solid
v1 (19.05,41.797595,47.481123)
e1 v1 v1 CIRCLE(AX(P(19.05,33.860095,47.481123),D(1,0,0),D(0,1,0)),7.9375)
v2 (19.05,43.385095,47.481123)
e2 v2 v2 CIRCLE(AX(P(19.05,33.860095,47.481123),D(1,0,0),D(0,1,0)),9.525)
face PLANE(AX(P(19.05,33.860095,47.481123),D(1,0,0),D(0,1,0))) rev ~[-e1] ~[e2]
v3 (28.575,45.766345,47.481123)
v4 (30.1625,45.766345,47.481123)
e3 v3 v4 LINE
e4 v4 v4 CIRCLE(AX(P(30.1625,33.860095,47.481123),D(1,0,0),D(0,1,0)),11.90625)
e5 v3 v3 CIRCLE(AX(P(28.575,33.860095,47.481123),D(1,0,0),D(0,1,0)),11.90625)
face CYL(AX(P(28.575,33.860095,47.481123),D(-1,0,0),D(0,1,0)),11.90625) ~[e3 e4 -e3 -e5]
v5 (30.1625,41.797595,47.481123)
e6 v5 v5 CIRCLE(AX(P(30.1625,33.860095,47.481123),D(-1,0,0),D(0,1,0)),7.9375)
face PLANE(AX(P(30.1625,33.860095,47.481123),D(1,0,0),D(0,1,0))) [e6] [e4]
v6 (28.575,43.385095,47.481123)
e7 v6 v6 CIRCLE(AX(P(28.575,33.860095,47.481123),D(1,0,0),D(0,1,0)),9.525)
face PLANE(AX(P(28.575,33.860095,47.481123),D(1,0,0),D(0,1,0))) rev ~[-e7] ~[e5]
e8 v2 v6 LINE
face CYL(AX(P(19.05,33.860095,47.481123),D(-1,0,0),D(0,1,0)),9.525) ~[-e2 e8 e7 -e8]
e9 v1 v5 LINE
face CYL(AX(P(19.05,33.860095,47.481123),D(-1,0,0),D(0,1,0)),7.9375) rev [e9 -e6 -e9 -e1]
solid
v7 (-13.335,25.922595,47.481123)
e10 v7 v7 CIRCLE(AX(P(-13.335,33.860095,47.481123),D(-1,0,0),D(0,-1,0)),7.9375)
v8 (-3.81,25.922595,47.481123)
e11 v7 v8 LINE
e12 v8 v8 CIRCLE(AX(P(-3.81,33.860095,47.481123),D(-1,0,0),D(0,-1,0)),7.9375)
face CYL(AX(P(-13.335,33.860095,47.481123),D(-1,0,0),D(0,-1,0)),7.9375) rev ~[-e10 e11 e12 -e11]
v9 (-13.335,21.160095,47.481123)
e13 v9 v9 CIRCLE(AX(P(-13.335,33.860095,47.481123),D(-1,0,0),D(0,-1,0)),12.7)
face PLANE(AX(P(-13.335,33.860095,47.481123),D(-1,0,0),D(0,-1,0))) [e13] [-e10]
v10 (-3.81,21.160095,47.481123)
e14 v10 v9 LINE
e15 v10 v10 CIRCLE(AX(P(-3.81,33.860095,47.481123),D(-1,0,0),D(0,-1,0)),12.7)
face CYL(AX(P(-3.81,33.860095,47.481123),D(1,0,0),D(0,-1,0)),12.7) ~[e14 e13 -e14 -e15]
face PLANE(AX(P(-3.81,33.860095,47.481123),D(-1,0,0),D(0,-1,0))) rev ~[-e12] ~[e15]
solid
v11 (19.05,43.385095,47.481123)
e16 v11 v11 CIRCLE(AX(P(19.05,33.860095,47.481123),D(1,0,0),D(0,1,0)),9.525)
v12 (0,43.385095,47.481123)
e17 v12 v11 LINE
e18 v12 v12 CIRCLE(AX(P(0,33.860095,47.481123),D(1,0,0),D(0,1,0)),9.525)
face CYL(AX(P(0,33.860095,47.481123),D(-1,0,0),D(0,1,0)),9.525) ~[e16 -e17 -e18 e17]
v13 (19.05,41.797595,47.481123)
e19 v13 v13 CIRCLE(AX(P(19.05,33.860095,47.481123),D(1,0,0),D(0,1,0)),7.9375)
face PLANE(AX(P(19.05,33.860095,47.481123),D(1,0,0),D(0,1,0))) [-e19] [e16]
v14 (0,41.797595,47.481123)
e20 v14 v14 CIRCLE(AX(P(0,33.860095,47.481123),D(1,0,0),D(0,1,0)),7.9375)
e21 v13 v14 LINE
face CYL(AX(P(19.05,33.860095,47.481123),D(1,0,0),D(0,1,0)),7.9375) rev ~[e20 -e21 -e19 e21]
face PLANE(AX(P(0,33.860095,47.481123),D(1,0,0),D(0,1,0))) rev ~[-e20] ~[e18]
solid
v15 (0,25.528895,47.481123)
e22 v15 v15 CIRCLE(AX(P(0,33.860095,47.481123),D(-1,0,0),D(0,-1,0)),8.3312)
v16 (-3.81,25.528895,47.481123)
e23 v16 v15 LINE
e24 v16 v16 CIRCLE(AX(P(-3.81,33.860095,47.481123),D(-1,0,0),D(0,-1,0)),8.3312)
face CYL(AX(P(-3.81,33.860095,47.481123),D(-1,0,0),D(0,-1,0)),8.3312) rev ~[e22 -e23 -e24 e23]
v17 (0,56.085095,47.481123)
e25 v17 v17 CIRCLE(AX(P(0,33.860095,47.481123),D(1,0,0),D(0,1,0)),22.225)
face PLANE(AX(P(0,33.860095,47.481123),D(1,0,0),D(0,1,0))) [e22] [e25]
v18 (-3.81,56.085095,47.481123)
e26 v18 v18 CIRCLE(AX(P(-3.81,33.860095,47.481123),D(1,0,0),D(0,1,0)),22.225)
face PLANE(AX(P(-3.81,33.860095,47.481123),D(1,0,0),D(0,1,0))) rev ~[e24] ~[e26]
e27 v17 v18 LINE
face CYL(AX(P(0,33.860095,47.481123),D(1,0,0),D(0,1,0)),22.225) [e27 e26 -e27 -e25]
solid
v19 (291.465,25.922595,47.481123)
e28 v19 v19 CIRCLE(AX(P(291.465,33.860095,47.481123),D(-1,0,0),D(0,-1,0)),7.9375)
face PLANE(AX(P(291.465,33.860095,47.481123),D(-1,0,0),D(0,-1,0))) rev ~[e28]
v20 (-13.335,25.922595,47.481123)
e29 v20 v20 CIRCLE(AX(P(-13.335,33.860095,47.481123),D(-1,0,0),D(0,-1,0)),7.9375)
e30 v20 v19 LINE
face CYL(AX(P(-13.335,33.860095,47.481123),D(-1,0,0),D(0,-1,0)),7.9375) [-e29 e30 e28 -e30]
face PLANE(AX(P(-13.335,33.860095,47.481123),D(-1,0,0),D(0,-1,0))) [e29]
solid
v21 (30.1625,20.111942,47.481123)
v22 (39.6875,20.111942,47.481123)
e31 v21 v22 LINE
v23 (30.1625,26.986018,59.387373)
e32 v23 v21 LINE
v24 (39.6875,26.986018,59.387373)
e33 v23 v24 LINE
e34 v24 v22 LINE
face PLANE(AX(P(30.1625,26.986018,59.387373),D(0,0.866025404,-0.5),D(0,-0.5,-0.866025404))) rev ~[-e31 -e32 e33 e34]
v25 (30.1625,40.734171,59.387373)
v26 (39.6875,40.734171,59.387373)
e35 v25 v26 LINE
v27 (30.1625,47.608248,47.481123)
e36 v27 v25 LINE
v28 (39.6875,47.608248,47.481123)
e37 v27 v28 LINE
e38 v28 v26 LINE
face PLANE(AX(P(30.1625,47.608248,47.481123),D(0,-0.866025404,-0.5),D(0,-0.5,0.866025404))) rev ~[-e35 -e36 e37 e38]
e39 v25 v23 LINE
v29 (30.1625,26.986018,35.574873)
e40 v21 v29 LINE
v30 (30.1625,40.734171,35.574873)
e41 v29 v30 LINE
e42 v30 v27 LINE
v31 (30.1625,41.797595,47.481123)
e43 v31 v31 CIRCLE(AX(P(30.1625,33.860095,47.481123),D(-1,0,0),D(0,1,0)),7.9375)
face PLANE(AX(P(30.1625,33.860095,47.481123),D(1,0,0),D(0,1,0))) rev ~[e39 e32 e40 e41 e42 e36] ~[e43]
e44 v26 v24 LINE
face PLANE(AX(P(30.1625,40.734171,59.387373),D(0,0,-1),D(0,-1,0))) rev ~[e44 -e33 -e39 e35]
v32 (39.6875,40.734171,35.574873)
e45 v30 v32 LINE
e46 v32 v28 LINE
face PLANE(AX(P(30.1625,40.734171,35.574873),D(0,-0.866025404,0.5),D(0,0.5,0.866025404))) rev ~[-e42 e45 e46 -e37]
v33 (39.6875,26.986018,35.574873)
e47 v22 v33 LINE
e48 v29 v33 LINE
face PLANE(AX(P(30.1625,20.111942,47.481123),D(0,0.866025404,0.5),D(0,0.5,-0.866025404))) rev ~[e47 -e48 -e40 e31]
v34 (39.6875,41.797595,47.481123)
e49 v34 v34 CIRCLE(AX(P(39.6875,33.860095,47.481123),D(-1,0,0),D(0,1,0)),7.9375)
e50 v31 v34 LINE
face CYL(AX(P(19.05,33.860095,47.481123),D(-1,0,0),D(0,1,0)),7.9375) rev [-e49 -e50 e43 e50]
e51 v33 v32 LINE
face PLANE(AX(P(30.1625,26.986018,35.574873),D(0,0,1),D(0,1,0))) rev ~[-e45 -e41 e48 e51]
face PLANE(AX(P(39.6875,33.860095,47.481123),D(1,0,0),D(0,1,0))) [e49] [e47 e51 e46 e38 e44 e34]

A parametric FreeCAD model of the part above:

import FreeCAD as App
import Part
import Sketcher
Q = App.Units.Quantity

doc = App.newDocument("Part")
body = doc.addObject("PartDesign::Body", "Body")

# Sketch on YZ plane
sketch1 = doc.addObject("Sketcher::SketchObject", "Sketch")
body.addObject(sketch1)
sketch1.AttachmentSupport = (doc.YZ_Plane, [""])
sketch1.MapMode = "FlatFace"
sketch1.addGeometry(Part.Circle(App.Vector(34, 47, 0), App.Vector(0, 0, 1), 10), False)
sketch1.addConstraint(Sketcher.Constraint("Diameter", 0, Q("0.75 in")))
sketch1.addConstraint(Sketcher.Constraint("DistanceX", -1, 1, 0, 3, Q("33.860095 mm")))
sketch1.addConstraint(Sketcher.Constraint("DistanceY", -1, 1, 0, 3, Q("47.481123 mm")))
pad1 = doc.addObject("PartDesign::Pad", "Pad")
body.addObject(pad1)
pad1.Profile = sketch1
pad1.Length = Q("0.75 in")
body2 = doc.addObject("PartDesign::Body", "Body001")

# Sketch on YZ plane
sketch2 = doc.addObject("Sketcher::SketchObject", "Sketch001")
body2.addObject(sketch2)
sketch2.AttachmentSupport = (doc.getObject("YZ_Plane001"), [""])
sketch2.MapMode = "FlatFace"
sketch2.AttachmentOffset = App.Placement(App.Vector(0, 0, 0.75 * 25.4), App.Rotation())
sketch2.addGeometry(Part.Circle(App.Vector(34, 47, 0), App.Vector(0, 0, 1), 10), False)
sketch2.addConstraint(Sketcher.Constraint("Diameter", 0, Q("0.75 in")))
sketch2.addConstraint(Sketcher.Constraint("DistanceX", -1, 1, 0, 3, Q("33.860095 mm")))
sketch2.addConstraint(Sketcher.Constraint("DistanceY", -1, 1, 0, 3, Q("47.481123 mm")))
pad2 = doc.addObject("PartDesign::Pad", "Pad001")
body2.addObject(pad2)
pad2.Profile = sketch2
pad2.Length = Q("0.375 in")

# Sketch on YZ plane
sketch3 = doc.addObject("Sketcher::SketchObject", "Sketch002")
body2.addObject(sketch3)
sketch3.AttachmentSupport = (doc.getObject("YZ_Plane001"), [""])
sketch3.MapMode = "FlatFace"
sketch3.AttachmentOffset = App.Placement(App.Vector(0, 0, 1.125 * 25.4), App.Rotation())
sketch3.addGeometry(Part.Circle(App.Vector(34, 47, 0), App.Vector(0, 0, 1), 12), False)
sketch3.addConstraint(Sketcher.Constraint("Diameter", 0, Q("0.9375 in")))
sketch3.addConstraint(Sketcher.Constraint("DistanceX", -1, 1, 0, 3, Q("33.860095 mm")))
sketch3.addConstraint(Sketcher.Constraint("DistanceY", -1, 1, 0, 3, Q("47.481123 mm")))
pad3 = doc.addObject("PartDesign::Pad", "Pad002")
body2.addObject(pad3)
pad3.Profile = sketch3
pad3.Length = Q("0.0625 in")
body3 = doc.addObject("PartDesign::Body", "Body002")

# Sketch on YZ plane
sketch4 = doc.addObject("Sketcher::SketchObject", "Sketch003")
body3.addObject(sketch4)
sketch4.AttachmentSupport = (doc.getObject("YZ_Plane002"), [""])
sketch4.MapMode = "FlatFace"
sketch4.AttachmentOffset = App.Placement(App.Vector(0, 0, 1.1875 * 25.4), App.Rotation())
sketch4.addGeometry(Part.LineSegment(App.Vector(41, 59, 0), App.Vector(27, 59, 0)), False)
sketch4.addGeometry(Part.LineSegment(App.Vector(27, 59, 0), App.Vector(20, 47, 0)), False)
sketch4.addGeometry(Part.LineSegment(App.Vector(20, 47, 0), App.Vector(27, 36, 0)), False)
sketch4.addGeometry(Part.LineSegment(App.Vector(27, 36, 0), App.Vector(41, 36, 0)), False)
sketch4.addGeometry(Part.LineSegment(App.Vector(41, 36, 0), App.Vector(48, 47, 0)), False)
sketch4.addGeometry(Part.LineSegment(App.Vector(48, 47, 0), App.Vector(41, 59, 0)), False)
sketch4.addConstraint(Sketcher.Constraint("Coincident", 0, 2, 1, 1))
sketch4.addConstraint(Sketcher.Constraint("Coincident", 1, 2, 2, 1))
sketch4.addConstraint(Sketcher.Constraint("Coincident", 2, 2, 3, 1))
sketch4.addConstraint(Sketcher.Constraint("Coincident", 3, 2, 4, 1))
sketch4.addConstraint(Sketcher.Constraint("Coincident", 4, 2, 5, 1))
sketch4.addConstraint(Sketcher.Constraint("Coincident", 5, 2, 0, 1))
sketch4.addConstraint(Sketcher.Constraint("Horizontal", 0))
sketch4.addConstraint(Sketcher.Constraint("Horizontal", 3))
sketch4.addConstraint(Sketcher.Constraint("Parallel", 1, 4))
sketch4.addConstraint(Sketcher.Constraint("Parallel", 2, 5))
sketch4.addConstraint(Sketcher.Constraint("Horizontal", 1, 2, 4, 2))
sketch4.addConstraint(Sketcher.Constraint("Vertical", 0, 2, 2, 2))
sketch4.addConstraint(Sketcher.Constraint("Vertical", 3, 2, 5, 2))
sketch4.addConstraint(Sketcher.Constraint("Angle", 1, Q("-120 deg")))
sketch4.addConstraint(Sketcher.Constraint("DistanceY", 1, 2, 0, 2, Q("0.46875 in")))
sketch4.addConstraint(Sketcher.Constraint("DistanceX", 0, 2, 0, 1, Q("13.748153 mm")))
sketch4.addConstraint(Sketcher.Constraint("DistanceX", -1, 1, 0, 2, Q("26.986018 mm")))
sketch4.addConstraint(Sketcher.Constraint("DistanceY", -1, 1, 0, 2, Q("59.387373 mm")))
pad4 = doc.addObject("PartDesign::Pad", "Pad003")
body3.addObject(pad4)
pad4.Profile = sketch4
pad4.Length = Q("0.375 in")
body4 = doc.addObject("PartDesign::Body", "Body003")

# Sketch on YZ plane
sketch5 = doc.addObject("Sketcher::SketchObject", "Sketch004")
body4.addObject(sketch5)
sketch5.AttachmentSupport = (doc.getObject("YZ_Plane003"), [""])
sketch5.MapMode = "FlatFace"
sketch5.AttachmentOffset = App.Placement(App.Vector(0, 0, 0.75 * 25.4), App.Rotation())
sketch5.addGeometry(Part.Circle(App.Vector(34, 47, 0), App.Vector(0, 0, 1), 8), False)
sketch5.addConstraint(Sketcher.Constraint("Diameter", 0, Q("0.625 in")))
sketch5.addConstraint(Sketcher.Constraint("DistanceX", -1, 1, 0, 3, Q("33.860095 mm")))
sketch5.addConstraint(Sketcher.Constraint("DistanceY", -1, 1, 0, 3, Q("47.481123 mm")))
pad5 = doc.addObject("PartDesign::Pad", "Pad004")
body4.addObject(pad5)
pad5.Profile = sketch5
pad5.Type = "TwoLengths"
pad5.Length = 19.051
pad5.Length2 = 20.6385
pad5.Reversed = True
doc.recompute()

body5 = doc.addObject("PartDesign::Body", "Body004")
body5.BaseFeature = body4
boolean = doc.addObject("PartDesign::Boolean", "Boolean")
body.addObject(boolean)
boolean.Type = "Cut"
boolean.addObjects([body5])
doc.recompute()

body6 = doc.addObject("PartDesign::Body", "Body005")
body6.BaseFeature = body4
boolean2 = doc.addObject("PartDesign::Boolean", "Boolean001")
body2.addObject(boolean2)
boolean2.Type = "Cut"
boolean2.addObjects([body6])
doc.recompute()

boolean3 = doc.addObject("PartDesign::Boolean", "Boolean002")
body3.addObject(boolean3)
boolean3.Type = "Cut"
boolean3.addObjects([body4])
body7 = doc.addObject("PartDesign::Body", "Body006")

# Sketch on YZ plane
sketch6 = doc.addObject("Sketcher::SketchObject", "Sketch005")
body7.addObject(sketch6)
sketch6.AttachmentSupport = (doc.getObject("YZ_Plane006"), [""])
sketch6.MapMode = "FlatFace"
sketch6.addGeometry(Part.Circle(App.Vector(34, 47, 0), App.Vector(0, 0, 1), 22), False)
sketch6.addConstraint(Sketcher.Constraint("Diameter", 0, Q("1.75 in")))
sketch6.addConstraint(Sketcher.Constraint("DistanceX", -1, 1, 0, 3, Q("33.860095 mm")))
sketch6.addConstraint(Sketcher.Constraint("DistanceY", -1, 1, 0, 3, Q("47.481123 mm")))
pad6 = doc.addObject("PartDesign::Pad", "Pad005")
body7.addObject(pad6)
pad6.Profile = sketch6
pad6.Length = Q("0.15 in")
pad6.Reversed = True

# Sketch on YZ plane
sketch7 = doc.addObject("Sketcher::SketchObject", "Sketch006")
body7.addObject(sketch7)
sketch7.AttachmentSupport = (doc.getObject("YZ_Plane006"), [""])
sketch7.MapMode = "FlatFace"
sketch7.AttachmentOffset = App.Placement(App.Vector(0, 0, -0.15 * 25.4), App.Rotation())
sketch7.addGeometry(Part.Circle(App.Vector(34, 47, 0), App.Vector(0, 0, 1), 8), False)
sketch7.addConstraint(Sketcher.Constraint("Diameter", 0, Q("0.656 in")))
sketch7.addConstraint(Sketcher.Constraint("DistanceX", -1, 1, 0, 3, Q("33.860095 mm")))
sketch7.addConstraint(Sketcher.Constraint("DistanceY", -1, 1, 0, 3, Q("47.481123 mm")))
pocket1 = doc.addObject("PartDesign::Pocket", "Pocket")
body7.addObject(pocket1)
pocket1.Profile = sketch7
pocket1.Type = "ThroughAll"
pocket1.Reversed = True
body8 = doc.addObject("PartDesign::Body", "Body007")

# Sketch on YZ plane
sketch8 = doc.addObject("Sketcher::SketchObject", "Sketch007")
body8.addObject(sketch8)
sketch8.AttachmentSupport = (doc.getObject("YZ_Plane007"), [""])
sketch8.MapMode = "FlatFace"
sketch8.AttachmentOffset = App.Placement(App.Vector(0, 0, -0.15 * 25.4), App.Rotation())
sketch8.addGeometry(Part.Circle(App.Vector(34, 47, 0), App.Vector(0, 0, 1), 13), False)
sketch8.addConstraint(Sketcher.Constraint("Diameter", 0, Q("1 in")))
sketch8.addConstraint(Sketcher.Constraint("DistanceX", -1, 1, 0, 3, Q("33.860095 mm")))
sketch8.addConstraint(Sketcher.Constraint("DistanceY", -1, 1, 0, 3, Q("47.481123 mm")))
pad7 = doc.addObject("PartDesign::Pad", "Pad006")
body8.addObject(pad7)
pad7.Profile = sketch8
pad7.Length = Q("0.375 in")
pad7.Reversed = True

# Sketch on YZ plane
sketch9 = doc.addObject("Sketcher::SketchObject", "Sketch008")
body8.addObject(sketch9)
sketch9.AttachmentSupport = (doc.getObject("YZ_Plane007"), [""])
sketch9.MapMode = "FlatFace"
sketch9.AttachmentOffset = App.Placement(App.Vector(0, 0, -0.525 * 25.4), App.Rotation())
sketch9.addGeometry(Part.Circle(App.Vector(34, 47, 0), App.Vector(0, 0, 1), 8), False)
sketch9.addConstraint(Sketcher.Constraint("Diameter", 0, Q("0.625 in")))
sketch9.addConstraint(Sketcher.Constraint("DistanceX", -1, 1, 0, 3, Q("33.860095 mm")))
sketch9.addConstraint(Sketcher.Constraint("DistanceY", -1, 1, 0, 3, Q("47.481123 mm")))
pocket2 = doc.addObject("PartDesign::Pocket", "Pocket001")
body8.addObject(pocket2)
pocket2.Profile = sketch9
pocket2.Type = "ThroughAll"
pocket2.Reversed = True
body9 = doc.addObject("PartDesign::Body", "Body008")

# Sketch on YZ plane
sketch10 = doc.addObject("Sketcher::SketchObject", "Sketch009")
body9.addObject(sketch10)
sketch10.AttachmentSupport = (doc.getObject("YZ_Plane008"), [""])
sketch10.MapMode = "FlatFace"
sketch10.AttachmentOffset = App.Placement(App.Vector(0, 0, -0.525 * 25.4), App.Rotation())
sketch10.addGeometry(Part.Circle(App.Vector(34, 47, 0), App.Vector(0, 0, 1), 8), False)
sketch10.addConstraint(Sketcher.Constraint("Diameter", 0, Q("0.625 in")))
sketch10.addConstraint(Sketcher.Constraint("DistanceX", -1, 1, 0, 3, Q("33.860095 mm")))
sketch10.addConstraint(Sketcher.Constraint("DistanceY", -1, 1, 0, 3, Q("47.481123 mm")))
pad8 = doc.addObject("PartDesign::Pad", "Pad007")
body9.addObject(pad8)
pad8.Profile = sketch10
pad8.Length = Q("12 in")

doc.recompute()
